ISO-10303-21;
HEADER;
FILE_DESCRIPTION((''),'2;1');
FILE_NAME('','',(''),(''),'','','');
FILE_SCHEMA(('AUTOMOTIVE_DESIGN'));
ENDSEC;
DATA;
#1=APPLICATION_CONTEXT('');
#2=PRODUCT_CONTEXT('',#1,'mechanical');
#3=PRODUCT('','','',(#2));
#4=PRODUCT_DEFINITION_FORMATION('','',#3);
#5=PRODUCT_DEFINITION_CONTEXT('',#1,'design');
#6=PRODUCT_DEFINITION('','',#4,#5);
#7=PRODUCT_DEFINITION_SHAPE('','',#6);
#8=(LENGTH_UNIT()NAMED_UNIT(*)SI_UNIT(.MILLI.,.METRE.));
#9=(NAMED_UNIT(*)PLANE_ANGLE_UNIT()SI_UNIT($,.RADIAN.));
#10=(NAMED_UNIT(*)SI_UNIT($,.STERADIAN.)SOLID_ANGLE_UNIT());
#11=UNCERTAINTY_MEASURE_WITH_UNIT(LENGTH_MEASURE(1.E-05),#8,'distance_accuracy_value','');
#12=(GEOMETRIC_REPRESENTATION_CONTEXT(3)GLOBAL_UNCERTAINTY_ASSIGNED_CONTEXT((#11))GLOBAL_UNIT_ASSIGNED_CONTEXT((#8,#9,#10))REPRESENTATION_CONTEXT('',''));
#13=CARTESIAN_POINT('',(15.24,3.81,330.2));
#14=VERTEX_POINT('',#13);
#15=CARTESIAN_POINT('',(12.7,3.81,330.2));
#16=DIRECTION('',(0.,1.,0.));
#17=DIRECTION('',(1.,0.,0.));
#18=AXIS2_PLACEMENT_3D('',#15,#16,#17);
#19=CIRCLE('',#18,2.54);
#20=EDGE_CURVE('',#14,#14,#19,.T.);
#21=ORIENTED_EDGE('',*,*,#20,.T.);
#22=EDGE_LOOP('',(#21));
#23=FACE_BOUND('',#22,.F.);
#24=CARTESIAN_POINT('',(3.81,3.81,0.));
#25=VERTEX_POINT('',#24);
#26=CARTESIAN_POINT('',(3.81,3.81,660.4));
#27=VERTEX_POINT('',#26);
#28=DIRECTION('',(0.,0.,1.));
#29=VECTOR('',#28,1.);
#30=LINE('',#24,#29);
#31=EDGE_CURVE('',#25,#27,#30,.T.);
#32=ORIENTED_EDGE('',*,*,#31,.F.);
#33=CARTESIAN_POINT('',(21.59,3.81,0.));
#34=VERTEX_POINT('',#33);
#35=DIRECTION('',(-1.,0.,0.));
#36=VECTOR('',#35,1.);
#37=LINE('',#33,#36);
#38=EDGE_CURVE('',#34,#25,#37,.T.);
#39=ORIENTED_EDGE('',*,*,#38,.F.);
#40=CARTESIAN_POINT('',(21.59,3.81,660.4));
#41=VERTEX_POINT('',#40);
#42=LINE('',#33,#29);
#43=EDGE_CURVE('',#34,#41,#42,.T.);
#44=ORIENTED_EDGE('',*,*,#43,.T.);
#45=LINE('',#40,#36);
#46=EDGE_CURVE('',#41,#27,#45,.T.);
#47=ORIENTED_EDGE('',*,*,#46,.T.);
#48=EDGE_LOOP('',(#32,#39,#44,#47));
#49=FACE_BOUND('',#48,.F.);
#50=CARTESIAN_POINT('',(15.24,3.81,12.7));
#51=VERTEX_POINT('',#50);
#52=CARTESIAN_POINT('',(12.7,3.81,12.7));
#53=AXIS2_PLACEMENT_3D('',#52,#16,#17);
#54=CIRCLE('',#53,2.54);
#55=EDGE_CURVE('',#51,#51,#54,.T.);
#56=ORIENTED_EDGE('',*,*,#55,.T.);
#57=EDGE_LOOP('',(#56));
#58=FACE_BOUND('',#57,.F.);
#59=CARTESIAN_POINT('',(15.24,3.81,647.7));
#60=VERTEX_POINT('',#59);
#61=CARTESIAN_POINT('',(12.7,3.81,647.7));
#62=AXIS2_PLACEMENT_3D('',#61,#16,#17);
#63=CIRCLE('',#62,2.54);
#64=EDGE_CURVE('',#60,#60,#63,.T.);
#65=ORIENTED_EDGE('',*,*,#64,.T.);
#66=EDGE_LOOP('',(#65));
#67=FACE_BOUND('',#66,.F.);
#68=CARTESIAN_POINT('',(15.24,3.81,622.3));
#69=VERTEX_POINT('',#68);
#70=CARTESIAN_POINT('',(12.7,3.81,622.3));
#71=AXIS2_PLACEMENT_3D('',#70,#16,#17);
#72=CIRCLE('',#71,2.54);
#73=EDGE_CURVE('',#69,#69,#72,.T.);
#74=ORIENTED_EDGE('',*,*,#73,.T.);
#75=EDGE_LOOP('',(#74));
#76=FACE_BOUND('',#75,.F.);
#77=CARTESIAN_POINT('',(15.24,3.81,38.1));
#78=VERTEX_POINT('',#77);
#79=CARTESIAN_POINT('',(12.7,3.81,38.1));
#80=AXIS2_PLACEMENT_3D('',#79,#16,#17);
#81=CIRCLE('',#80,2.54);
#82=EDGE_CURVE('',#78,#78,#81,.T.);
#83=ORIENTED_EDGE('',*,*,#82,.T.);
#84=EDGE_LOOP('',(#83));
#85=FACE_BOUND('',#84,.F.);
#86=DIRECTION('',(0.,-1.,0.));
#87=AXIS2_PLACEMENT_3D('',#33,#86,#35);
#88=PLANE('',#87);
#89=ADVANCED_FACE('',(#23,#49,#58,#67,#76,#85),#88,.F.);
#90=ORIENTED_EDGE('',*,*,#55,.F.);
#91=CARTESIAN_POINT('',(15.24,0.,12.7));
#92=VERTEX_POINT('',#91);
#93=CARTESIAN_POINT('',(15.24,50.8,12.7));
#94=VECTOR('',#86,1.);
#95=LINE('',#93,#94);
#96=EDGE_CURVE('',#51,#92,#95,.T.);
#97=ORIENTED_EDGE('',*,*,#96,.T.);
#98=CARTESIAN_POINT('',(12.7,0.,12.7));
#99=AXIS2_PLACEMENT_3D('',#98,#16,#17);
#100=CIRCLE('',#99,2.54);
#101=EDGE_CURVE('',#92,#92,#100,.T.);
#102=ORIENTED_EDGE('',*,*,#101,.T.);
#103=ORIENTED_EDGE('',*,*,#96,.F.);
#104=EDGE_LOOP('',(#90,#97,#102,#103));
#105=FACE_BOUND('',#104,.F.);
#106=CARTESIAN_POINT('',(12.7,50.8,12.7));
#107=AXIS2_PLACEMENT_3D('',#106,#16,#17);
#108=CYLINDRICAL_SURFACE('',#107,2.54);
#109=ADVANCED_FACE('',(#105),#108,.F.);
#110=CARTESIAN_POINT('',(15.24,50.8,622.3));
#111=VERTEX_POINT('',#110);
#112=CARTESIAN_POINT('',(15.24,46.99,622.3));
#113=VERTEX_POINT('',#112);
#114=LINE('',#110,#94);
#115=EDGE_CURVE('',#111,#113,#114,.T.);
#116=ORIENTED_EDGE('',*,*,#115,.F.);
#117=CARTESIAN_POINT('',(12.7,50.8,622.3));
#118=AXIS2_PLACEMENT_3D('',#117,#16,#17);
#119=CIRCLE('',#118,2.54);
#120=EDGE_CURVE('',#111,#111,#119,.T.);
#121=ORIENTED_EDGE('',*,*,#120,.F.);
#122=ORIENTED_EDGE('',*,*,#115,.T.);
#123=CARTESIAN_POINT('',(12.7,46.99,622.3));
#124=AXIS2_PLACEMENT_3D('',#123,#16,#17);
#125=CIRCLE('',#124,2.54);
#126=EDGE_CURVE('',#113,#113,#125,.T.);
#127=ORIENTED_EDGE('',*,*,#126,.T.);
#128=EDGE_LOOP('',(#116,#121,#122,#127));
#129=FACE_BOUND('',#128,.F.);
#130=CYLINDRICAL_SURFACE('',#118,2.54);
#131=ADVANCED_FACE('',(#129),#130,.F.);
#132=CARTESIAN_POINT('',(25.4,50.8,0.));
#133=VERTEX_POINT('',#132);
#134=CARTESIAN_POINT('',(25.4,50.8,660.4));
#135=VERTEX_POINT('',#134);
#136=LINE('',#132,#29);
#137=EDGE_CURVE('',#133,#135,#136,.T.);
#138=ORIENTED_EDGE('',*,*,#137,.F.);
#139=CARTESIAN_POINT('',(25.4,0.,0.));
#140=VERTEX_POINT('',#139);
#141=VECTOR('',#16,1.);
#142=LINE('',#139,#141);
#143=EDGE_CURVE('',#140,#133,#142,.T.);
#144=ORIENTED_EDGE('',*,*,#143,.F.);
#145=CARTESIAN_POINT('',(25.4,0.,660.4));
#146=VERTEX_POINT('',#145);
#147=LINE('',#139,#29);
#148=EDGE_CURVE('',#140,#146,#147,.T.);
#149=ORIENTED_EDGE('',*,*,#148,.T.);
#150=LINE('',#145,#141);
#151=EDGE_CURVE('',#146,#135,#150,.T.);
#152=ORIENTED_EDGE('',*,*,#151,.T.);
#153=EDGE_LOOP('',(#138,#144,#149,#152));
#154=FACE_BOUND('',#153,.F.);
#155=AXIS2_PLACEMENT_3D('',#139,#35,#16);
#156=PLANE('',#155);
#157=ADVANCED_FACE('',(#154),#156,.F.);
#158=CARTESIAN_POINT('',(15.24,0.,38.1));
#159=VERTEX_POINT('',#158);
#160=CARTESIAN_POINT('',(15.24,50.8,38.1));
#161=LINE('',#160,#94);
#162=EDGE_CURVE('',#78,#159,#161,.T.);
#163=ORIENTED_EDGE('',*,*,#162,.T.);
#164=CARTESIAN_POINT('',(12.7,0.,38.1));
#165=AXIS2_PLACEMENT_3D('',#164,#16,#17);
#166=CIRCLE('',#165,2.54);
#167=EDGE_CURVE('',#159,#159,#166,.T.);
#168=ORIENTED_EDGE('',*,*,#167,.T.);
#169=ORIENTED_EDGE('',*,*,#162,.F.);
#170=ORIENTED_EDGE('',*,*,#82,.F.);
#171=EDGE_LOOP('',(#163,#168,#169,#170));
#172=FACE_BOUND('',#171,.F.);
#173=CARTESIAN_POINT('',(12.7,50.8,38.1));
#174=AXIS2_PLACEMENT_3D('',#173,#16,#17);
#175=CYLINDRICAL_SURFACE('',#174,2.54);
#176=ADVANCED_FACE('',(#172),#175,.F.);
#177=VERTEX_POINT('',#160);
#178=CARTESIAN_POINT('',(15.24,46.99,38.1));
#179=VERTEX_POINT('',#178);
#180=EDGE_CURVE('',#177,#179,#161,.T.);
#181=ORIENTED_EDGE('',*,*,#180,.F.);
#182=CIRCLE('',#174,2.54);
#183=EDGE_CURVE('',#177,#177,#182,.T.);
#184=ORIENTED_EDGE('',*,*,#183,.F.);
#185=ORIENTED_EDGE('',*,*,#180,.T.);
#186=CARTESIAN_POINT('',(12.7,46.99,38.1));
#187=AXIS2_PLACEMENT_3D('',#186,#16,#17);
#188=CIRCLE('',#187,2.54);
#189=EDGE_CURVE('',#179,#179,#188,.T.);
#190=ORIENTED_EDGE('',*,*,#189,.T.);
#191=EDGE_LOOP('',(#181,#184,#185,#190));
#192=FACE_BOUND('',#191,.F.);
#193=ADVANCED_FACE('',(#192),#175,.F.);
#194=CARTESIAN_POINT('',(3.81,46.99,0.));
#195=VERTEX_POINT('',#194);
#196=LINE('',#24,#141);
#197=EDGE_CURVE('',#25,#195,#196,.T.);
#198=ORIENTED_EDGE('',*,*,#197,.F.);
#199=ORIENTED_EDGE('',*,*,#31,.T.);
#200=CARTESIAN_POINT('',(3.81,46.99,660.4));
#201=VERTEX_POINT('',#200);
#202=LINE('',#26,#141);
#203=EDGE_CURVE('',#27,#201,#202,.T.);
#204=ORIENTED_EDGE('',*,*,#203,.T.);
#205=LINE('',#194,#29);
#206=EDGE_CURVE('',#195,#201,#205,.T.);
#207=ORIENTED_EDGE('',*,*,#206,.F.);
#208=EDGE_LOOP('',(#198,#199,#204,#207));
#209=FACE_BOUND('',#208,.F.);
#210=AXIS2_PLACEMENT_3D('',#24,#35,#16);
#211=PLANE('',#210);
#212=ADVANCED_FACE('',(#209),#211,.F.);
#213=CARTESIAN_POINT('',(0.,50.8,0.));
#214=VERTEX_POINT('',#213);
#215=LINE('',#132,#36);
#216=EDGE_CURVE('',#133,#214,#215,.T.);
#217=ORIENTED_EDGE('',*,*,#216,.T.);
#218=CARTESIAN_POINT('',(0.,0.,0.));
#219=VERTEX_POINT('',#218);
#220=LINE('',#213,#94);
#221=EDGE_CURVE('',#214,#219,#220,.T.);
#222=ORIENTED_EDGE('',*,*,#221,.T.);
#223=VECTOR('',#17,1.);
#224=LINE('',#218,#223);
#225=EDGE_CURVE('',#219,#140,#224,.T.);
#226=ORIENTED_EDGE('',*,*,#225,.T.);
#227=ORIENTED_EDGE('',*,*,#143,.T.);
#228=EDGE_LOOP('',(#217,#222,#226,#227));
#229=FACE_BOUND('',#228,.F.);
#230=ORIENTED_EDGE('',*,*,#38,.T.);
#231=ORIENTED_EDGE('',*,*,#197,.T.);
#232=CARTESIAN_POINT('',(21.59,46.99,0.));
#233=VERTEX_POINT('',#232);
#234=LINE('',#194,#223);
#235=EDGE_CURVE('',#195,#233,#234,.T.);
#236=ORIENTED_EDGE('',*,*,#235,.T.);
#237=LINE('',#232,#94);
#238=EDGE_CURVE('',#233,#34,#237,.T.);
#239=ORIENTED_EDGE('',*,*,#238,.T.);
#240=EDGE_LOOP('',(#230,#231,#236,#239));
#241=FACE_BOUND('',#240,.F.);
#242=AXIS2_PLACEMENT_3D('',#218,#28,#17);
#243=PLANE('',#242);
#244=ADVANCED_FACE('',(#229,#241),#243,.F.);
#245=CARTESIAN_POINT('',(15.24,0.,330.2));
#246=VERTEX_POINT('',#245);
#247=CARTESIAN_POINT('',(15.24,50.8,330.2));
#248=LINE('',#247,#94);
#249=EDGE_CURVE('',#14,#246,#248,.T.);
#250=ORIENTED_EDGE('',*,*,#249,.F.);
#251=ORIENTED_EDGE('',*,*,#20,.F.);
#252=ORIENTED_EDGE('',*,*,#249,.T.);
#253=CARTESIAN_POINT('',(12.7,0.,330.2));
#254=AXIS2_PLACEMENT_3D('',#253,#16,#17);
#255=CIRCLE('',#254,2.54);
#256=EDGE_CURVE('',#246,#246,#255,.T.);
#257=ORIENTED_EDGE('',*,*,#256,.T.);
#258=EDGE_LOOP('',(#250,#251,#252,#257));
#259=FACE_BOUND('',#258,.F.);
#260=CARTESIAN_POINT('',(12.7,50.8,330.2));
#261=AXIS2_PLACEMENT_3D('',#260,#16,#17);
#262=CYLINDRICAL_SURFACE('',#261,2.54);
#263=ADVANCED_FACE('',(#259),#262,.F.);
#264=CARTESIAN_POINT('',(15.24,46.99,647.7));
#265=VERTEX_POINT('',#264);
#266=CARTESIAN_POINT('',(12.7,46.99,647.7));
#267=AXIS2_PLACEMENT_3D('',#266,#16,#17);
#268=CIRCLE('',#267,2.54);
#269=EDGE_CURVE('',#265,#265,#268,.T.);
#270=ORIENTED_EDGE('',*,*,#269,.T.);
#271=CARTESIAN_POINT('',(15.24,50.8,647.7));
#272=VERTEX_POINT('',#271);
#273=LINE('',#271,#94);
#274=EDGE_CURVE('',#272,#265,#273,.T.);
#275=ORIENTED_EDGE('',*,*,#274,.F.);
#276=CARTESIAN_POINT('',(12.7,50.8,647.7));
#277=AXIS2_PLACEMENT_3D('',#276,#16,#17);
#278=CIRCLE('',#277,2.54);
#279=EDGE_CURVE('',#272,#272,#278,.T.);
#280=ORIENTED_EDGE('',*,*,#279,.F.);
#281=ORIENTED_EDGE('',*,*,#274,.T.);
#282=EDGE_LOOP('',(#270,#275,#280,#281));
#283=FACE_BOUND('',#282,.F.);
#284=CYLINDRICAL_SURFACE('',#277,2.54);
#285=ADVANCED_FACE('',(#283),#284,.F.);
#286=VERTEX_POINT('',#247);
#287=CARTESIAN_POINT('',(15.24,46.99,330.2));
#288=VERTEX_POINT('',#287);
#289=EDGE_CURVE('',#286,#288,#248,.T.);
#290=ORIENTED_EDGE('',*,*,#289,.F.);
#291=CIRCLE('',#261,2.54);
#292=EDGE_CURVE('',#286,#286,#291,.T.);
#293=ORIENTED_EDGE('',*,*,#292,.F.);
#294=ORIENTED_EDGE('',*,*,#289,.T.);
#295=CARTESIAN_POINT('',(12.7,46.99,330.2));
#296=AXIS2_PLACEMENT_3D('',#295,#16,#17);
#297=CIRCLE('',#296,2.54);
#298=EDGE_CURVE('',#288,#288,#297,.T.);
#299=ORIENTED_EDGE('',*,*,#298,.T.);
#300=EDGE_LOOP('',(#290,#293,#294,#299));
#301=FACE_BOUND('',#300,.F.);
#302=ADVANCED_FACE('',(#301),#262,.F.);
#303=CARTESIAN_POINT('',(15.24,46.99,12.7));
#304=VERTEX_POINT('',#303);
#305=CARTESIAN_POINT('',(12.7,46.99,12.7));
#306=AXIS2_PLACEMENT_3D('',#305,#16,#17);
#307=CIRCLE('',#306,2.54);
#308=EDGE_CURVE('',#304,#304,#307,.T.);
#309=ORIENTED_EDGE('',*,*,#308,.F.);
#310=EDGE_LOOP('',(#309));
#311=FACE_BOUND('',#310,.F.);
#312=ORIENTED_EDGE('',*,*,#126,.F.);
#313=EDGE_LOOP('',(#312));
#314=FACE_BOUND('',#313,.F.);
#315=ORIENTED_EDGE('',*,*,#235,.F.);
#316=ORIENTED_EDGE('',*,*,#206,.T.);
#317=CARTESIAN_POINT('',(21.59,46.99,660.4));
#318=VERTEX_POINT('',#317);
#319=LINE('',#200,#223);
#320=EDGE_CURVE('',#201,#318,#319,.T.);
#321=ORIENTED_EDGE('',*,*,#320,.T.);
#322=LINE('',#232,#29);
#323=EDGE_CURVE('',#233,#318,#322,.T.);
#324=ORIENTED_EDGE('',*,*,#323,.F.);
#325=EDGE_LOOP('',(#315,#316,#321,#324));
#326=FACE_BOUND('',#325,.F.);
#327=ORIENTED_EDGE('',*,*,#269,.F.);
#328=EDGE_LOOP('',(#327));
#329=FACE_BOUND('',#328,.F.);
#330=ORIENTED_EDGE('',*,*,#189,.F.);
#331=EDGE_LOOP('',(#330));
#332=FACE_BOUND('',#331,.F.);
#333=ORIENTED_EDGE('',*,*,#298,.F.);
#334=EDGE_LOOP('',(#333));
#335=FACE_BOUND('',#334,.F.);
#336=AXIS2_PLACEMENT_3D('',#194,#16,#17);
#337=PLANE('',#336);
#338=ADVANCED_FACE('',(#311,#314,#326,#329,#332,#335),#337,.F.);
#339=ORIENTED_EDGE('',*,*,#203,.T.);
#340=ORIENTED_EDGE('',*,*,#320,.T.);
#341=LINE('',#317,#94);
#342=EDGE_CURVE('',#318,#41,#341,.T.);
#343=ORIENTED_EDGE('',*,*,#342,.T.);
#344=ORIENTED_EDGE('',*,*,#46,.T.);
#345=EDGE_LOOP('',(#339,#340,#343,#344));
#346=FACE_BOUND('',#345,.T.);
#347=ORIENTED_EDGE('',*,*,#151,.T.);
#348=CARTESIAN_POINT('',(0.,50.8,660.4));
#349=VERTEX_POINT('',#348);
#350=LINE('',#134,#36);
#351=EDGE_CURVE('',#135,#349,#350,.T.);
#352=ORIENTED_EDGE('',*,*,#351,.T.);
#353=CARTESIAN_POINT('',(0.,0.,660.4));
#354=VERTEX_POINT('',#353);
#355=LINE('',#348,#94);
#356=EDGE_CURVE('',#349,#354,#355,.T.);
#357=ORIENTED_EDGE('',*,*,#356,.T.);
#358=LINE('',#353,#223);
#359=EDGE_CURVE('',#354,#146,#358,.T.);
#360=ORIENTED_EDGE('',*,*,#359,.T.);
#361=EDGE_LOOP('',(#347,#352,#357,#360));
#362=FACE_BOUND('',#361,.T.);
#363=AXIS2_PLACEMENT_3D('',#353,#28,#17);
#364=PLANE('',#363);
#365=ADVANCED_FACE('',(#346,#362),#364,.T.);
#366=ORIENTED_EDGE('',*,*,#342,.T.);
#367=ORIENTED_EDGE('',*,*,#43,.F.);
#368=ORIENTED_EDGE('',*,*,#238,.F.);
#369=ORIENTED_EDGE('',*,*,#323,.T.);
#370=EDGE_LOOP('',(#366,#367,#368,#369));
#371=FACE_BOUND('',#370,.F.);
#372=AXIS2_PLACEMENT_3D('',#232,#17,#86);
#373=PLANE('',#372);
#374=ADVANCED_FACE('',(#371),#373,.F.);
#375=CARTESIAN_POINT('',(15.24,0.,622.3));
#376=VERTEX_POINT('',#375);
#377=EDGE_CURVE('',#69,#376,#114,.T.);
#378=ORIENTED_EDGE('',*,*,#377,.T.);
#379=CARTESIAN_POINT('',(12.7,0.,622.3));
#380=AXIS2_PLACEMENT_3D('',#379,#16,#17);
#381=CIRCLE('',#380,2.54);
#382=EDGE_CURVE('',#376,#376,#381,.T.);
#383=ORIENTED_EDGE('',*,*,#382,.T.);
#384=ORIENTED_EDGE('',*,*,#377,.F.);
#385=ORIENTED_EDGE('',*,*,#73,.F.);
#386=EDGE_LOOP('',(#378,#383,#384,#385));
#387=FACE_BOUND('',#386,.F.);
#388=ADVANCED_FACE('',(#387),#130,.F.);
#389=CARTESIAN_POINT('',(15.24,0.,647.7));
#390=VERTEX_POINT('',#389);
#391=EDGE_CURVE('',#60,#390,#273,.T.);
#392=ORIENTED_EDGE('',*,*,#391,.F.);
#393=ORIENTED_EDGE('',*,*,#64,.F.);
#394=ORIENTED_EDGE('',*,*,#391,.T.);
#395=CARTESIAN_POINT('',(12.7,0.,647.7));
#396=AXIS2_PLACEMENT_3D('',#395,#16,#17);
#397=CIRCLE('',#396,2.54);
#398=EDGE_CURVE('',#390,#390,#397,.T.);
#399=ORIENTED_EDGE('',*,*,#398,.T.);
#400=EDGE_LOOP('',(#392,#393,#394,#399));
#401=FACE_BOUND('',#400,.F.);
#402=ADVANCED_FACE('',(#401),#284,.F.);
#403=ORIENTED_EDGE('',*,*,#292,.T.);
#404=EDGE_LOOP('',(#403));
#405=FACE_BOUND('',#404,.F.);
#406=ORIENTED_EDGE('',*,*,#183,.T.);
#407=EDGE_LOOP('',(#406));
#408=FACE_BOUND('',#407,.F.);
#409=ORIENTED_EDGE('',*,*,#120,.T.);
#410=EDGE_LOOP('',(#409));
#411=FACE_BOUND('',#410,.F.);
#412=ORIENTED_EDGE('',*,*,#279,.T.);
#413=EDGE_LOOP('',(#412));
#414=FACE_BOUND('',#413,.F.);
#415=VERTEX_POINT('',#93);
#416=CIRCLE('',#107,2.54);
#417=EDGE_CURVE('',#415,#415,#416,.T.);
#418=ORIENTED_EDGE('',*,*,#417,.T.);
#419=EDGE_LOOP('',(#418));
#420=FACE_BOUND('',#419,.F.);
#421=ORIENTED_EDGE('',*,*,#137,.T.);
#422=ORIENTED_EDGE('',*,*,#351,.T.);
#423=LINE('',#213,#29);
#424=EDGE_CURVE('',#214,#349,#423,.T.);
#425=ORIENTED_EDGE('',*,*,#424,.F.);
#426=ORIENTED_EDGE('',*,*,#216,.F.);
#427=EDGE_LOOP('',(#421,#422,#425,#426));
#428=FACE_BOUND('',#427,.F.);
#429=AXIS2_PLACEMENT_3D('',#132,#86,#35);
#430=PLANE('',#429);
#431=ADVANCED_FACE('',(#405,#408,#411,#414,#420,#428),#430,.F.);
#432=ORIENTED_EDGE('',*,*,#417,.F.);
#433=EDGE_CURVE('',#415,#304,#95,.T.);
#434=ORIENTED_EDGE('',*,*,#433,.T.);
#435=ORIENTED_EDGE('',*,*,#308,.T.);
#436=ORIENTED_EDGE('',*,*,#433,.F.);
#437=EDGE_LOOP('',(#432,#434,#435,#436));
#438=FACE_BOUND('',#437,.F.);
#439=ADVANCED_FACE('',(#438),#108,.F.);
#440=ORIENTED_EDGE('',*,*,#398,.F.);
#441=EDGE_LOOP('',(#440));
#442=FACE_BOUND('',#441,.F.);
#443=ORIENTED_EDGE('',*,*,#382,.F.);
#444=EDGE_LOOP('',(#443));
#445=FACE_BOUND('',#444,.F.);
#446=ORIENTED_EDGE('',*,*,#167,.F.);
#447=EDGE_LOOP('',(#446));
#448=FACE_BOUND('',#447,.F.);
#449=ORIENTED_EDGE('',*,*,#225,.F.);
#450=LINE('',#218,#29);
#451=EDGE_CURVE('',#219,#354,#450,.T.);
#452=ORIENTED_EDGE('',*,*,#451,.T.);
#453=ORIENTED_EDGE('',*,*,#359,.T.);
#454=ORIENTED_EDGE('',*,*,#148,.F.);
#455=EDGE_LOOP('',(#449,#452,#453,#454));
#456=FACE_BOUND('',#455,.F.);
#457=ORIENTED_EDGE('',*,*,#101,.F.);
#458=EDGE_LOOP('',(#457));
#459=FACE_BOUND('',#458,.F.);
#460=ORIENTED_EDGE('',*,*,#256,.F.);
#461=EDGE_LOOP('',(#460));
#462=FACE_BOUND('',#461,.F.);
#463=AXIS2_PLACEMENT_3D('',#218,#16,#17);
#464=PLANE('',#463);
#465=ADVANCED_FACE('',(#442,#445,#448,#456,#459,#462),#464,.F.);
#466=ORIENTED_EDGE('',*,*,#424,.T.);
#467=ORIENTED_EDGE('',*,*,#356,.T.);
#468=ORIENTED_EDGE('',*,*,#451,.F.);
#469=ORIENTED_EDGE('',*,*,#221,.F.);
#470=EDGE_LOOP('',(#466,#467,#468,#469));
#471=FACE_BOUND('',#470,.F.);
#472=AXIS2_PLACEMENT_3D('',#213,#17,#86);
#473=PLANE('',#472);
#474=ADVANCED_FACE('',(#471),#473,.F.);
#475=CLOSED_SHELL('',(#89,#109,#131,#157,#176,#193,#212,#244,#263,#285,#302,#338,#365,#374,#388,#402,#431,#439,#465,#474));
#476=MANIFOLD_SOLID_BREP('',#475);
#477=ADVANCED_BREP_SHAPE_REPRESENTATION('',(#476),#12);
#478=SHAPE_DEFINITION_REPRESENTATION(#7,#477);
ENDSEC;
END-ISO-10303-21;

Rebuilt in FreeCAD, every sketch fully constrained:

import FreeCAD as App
import Part
import Sketcher

V = App.Vector
Q = App.Units.Quantity


def add_polygon(sketch, points):
    """Adds a closed chain of lines whose ends are joined by coincident constraints."""
    first, n = sketch.GeometryCount, len(points)
    for a, b in zip(points, points[1:] + points[:1]):
        sketch.addGeometry(Part.LineSegment(App.Vector(*a, 0), App.Vector(*b, 0)), False)
    for i in range(n):
        sketch.addConstraint(Sketcher.Constraint("Coincident", first + i, 2, first + (i + 1) % n, 1))

doc = App.newDocument("Part")
body = doc.addObject("PartDesign::Body", "Body")

# Sketch on XY plane
sketch1 = body.newObject("Sketcher::SketchObject", "Sketch")
sketch1.AttachmentSupport = (doc.getObject("XY_Plane"), [""])
sketch1.MapMode = "FlatFace"
add_polygon(sketch1, [(0, 50.8), (0, 0), (25.4, 0), (25.4, 50.8)])  # lines 0-3
add_polygon(sketch1, [(3.81, 46.99), (21.59, 46.99), (21.59, 3.81), (3.81, 3.81)])  # lines 4-7
sketch1.addConstraint([
    Sketcher.Constraint("Vertical", 0),
    Sketcher.Constraint("Horizontal", 1),
    Sketcher.Constraint("Vertical", 2),
    Sketcher.Constraint("Horizontal", 3),
    Sketcher.Constraint("Horizontal", 4),
    Sketcher.Constraint("Vertical", 5),
    Sketcher.Constraint("Horizontal", 6),
    Sketcher.Constraint("Vertical", 7),
    Sketcher.Constraint("Coincident", 0, 2, -1, 1),
    Sketcher.Constraint("DistanceX", 1, 1, 1, 2, Q("1 in")),
    Sketcher.Constraint("DistanceY", 0, 2, 0, 1, Q("2 in")),
    Sketcher.Constraint("DistanceY", -1, 1, 5, 2, Q("0.15 in")),
    Sketcher.Constraint("DistanceX", -1, 1, 6, 2, Q("0.15 in")),
    Sketcher.Constraint("DistanceX", 4, 2, 2, 2, Q("0.15 in")),
    Sketcher.Constraint("DistanceY", 4, 2, 2, 2, Q("0.15 in")),
])
pad1 = body.newObject("PartDesign::Pad", "Pad")
pad1.Profile = sketch1
pad1.Length = Q("26 in")

# Sketch on XZ plane
sketch2 = body.newObject("Sketcher::SketchObject", "Sketch001")
sketch2.AttachmentSupport = (doc.getObject("XZ_Plane"), [""])
sketch2.MapMode = "FlatFace"
sketch2.AttachmentOffset = App.Placement(V(0, 0, -2 * 25.4), App.Rotation())
sketch2.addGeometry([
    Part.Circle(V(12.7, 647.7, 0), V(0, 0, 1), 2.54),  # 0
    Part.Circle(V(12.7, 622.3, 0), V(0, 0, 1), 2.54),  # 1
    Part.Circle(V(12.7, 330.2, 0), V(0, 0, 1), 2.54),  # 2
    Part.Circle(V(12.7, 38.1, 0), V(0, 0, 1), 2.54),  # 3
    Part.Circle(V(12.7, 12.7, 0), V(0, 0, 1), 2.54),  # 4
], False)
sketch2.addConstraint([
    Sketcher.Constraint("Equal", 0, 1),
    Sketcher.Constraint("Equal", 1, 2),
    Sketcher.Constraint("Equal", 2, 3),
    Sketcher.Constraint("Equal", 3, 4),
    Sketcher.Constraint("Vertical", 0, 3, 1, 3),
    Sketcher.Constraint("Vertical", 1, 3, 2, 3),
    Sketcher.Constraint("Vertical", 2, 3, 3, 3),
    Sketcher.Constraint("Vertical", 3, 3, 4, 3),
    Sketcher.Constraint("Diameter", 0, Q("0.2 in")),
    Sketcher.Constraint("DistanceY", 1, 3, 0, 3, Q("1 in")),
    Sketcher.Constraint("DistanceY", 4, 3, 3, 3, Q("1 in")),
    Sketcher.Constraint("DistanceX", -1, 1, 0, 3, Q("0.5 in")),
    Sketcher.Constraint("DistanceY", -1, 1, 4, 3, Q("0.5 in")),
    Sketcher.Constraint("DistanceY", -1, 1, 2, 3, Q("13 in")),
    Sketcher.Constraint("DistanceY", 3, 3, 1, 3, Q("23 in")),
])
pocket1 = body.newObject("PartDesign::Pocket", "Pocket")
pocket1.Profile = sketch2
pocket1.Length = Q("26 in")
pocket1.Reversed = True

doc.recompute()
